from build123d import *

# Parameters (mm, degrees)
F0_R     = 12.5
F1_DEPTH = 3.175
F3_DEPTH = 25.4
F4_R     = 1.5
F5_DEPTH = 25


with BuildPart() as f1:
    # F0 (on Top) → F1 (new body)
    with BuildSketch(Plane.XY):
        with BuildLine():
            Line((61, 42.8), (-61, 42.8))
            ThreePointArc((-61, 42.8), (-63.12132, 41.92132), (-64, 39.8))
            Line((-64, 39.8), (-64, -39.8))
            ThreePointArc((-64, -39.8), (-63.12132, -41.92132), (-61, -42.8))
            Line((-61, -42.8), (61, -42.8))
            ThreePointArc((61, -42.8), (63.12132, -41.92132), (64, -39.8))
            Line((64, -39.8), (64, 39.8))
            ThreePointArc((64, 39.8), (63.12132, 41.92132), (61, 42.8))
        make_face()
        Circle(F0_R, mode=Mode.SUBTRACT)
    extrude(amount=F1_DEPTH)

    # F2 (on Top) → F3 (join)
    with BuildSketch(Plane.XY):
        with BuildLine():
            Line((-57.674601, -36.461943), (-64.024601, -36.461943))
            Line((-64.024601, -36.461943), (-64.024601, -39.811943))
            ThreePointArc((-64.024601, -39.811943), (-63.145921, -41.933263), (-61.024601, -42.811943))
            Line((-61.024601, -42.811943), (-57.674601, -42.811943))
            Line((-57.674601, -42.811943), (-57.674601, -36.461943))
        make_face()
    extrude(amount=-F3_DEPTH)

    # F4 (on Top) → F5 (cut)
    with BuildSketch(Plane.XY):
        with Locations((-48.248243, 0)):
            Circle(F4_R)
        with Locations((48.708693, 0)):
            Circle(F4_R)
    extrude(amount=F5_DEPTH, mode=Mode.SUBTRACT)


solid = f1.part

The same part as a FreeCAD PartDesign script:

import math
import FreeCAD as App
import Part
import Sketcher
Q = App.Units.Quantity

doc = App.newDocument("Part")
params = doc.addObject("Spreadsheet::Sheet", "Params")
for row, (alias, value) in enumerate([
    ("sketch1_diameter", "25 mm"),
    ("sketch1_radius", "3.000001 mm"),
    ("sketch1_width", "122 mm"),
    ("sketch1_height", "79.6 mm"),
    ("pad1_length", "3.175 mm"),
    ("sketch2_radius", "3.000001 mm"),
    ("sketch2_width", "6.35 mm"),
    ("pad2_length", "25.4 mm"),
    ("sketch3_diameter", "3 mm"),
    ("pocket1_length", "25 mm"),
], start=1):
    params.set(f"A{row}", alias)
    params.set(f"B{row}", "=" + value)
    params.setAlias(f"B{row}", alias)

body = doc.addObject("PartDesign::Body", "Body")

# Sketch on XY plane
sketch1 = doc.addObject("Sketcher::SketchObject", "Sketch")
body.addObject(sketch1)
sketch1.AttachmentSupport = (doc.XY_Plane, [""])
sketch1.MapMode = "FlatFace"
sketch1.addGeometry([
    Part.LineSegment(App.Vector(61, 42.8, 0), App.Vector(-61, 42.8, 0)),  # 0
    Part.ArcOfCircle(Part.Circle(App.Vector(-61, 39.8, 0), App.Vector(0, 0, 1), 3), math.radians(90), math.radians(180)),  # 1
    Part.LineSegment(App.Vector(-64, 39.8, 0), App.Vector(-64, -39.8, 0)),  # 2
    Part.ArcOfCircle(Part.Circle(App.Vector(-61, -39.8, 0), App.Vector(0, 0, 1), 3), math.radians(-180), math.radians(-90)),  # 3
    Part.LineSegment(App.Vector(-61, -42.8, 0), App.Vector(61, -42.8, 0)),  # 4
    Part.ArcOfCircle(Part.Circle(App.Vector(61, -39.8, 0), App.Vector(0, 0, 1), 3), math.radians(-90), math.radians(0)),  # 5
    Part.LineSegment(App.Vector(64, -39.8, 0), App.Vector(64, 39.8, 0)),  # 6
    Part.ArcOfCircle(Part.Circle(App.Vector(61, 39.8, 0), App.Vector(0, 0, 1), 3), math.radians(0), math.radians(90)),  # 7
    Part.Circle(App.Vector(0, 0, 0), App.Vector(0, 0, 1), 12.5),  # 8
], False)
sketch1.addConstraint([
    Sketcher.Constraint("Tangent", 0, 2, 1, 1),
    Sketcher.Constraint("Tangent", 1, 2, 2, 1),
    Sketcher.Constraint("Tangent", 2, 2, 3, 1),
    Sketcher.Constraint("Tangent", 3, 2, 4, 1),
    Sketcher.Constraint("Tangent", 4, 2, 5, 1),
    Sketcher.Constraint("Tangent", 5, 2, 6, 1),
    Sketcher.Constraint("Tangent", 6, 2, 7, 1),
    Sketcher.Constraint("Tangent", 7, 2, 0, 1),
    Sketcher.Constraint("Horizontal", 0),
    Sketcher.Constraint("Vertical", 2),
    Sketcher.Constraint("Horizontal", 4),
    Sketcher.Constraint("Vertical", 6),
    Sketcher.Constraint("Coincident", 8, 3, -1, 1),
    Sketcher.Constraint("Equal", 1, 3),
    Sketcher.Constraint("Equal", 3, 5),
    Sketcher.Constraint("Equal", 5, 7),
    Sketcher.Constraint("Symmetric", 1, 3, 5, 3, -1, 1),
    Sketcher.Constraint("Diameter", 8, Q("25 mm")),
    Sketcher.Constraint("Radius", 1, Q("3.000001 mm")),
    Sketcher.Constraint("DistanceX", 0, 2, 0, 1, Q("122 mm")),
    Sketcher.Constraint("DistanceY", 2, 2, 2, 1, Q("79.6 mm")),
])
sketch1.setExpression("Constraints[17]", "Params.sketch1_diameter")
sketch1.setExpression("Constraints[18]", "Params.sketch1_radius")
sketch1.setExpression("Constraints[19]", "Params.sketch1_width")
sketch1.setExpression("Constraints[20]", "Params.sketch1_height")
pad1 = doc.addObject("PartDesign::Pad", "Pad")
body.addObject(pad1)
pad1.Profile = sketch1
pad1.setExpression("Length", "Params.pad1_length")

# Sketch on XY plane
sketch2 = doc.addObject("Sketcher::SketchObject", "Sketch001")
body.addObject(sketch2)
sketch2.AttachmentSupport = (doc.XY_Plane, [""])
sketch2.MapMode = "FlatFace"
sketch2.addGeometry([
    Part.LineSegment(App.Vector(-57.7, -36.5, 0), App.Vector(-64, -36.5, 0)),  # 0
    Part.LineSegment(App.Vector(-64, -36.5, 0), App.Vector(-64, -39.8, 0)),  # 1
    Part.ArcOfCircle(Part.Circle(App.Vector(-61, -39.8, 0), App.Vector(0, 0, 1), 3), math.radians(-180), math.radians(-90)),  # 2
    Part.LineSegment(App.Vector(-61, -42.8, 0), App.Vector(-57.7, -42.8, 0)),  # 3
    Part.LineSegment(App.Vector(-57.7, -42.8, 0), App.Vector(-57.7, -36.5, 0)),  # 4
], False)
sketch2.addConstraint([
    Sketcher.Constraint("Coincident", 0, 2, 1, 1),
    Sketcher.Constraint("Tangent", 1, 2, 2, 1),
    Sketcher.Constraint("Tangent", 2, 2, 3, 1),
    Sketcher.Constraint("Coincident", 3, 2, 4, 1),
    Sketcher.Constraint("Coincident", 4, 2, 0, 1),
    Sketcher.Constraint("Horizontal", 0),
    Sketcher.Constraint("Vertical", 1),
    Sketcher.Constraint("Horizontal", 3),
    Sketcher.Constraint("Vertical", 4),
    Sketcher.Constraint("Equal", 3, 1),
    Sketcher.Constraint("Radius", 2, Q("3.000001 mm")),
    Sketcher.Constraint("DistanceX", 0, 2, 0, 1, Q("6.35 mm")),
    Sketcher.Constraint("DistanceX", 2, 3, -1, 1, Q("61.0246 mm")),
    Sketcher.Constraint("DistanceY", 2, 3, -1, 1, Q("39.811942 mm")),
])
sketch2.setExpression("Constraints[10]", "Params.sketch2_radius")
sketch2.setExpression("Constraints[11]", "Params.sketch2_width")
pad2 = doc.addObject("PartDesign::Pad", "Pad001")
body.addObject(pad2)
pad2.Profile = sketch2
pad2.setExpression("Length", "Params.pad2_length")
pad2.Reversed = True

# Sketch on XY plane
sketch3 = doc.addObject("Sketcher::SketchObject", "Sketch002")
body.addObject(sketch3)
sketch3.AttachmentSupport = (doc.XY_Plane, [""])
sketch3.MapMode = "FlatFace"
sketch3.addGeometry([
    Part.Circle(App.Vector(-48.2, 0, 0), App.Vector(0, 0, 1), 1.5),
    Part.Circle(App.Vector(48.7, 0, 0), App.Vector(0, 0, 1), 1.5),
], False)
sketch3.addConstraint([
    Sketcher.Constraint("Equal", 0, 1),
    Sketcher.Constraint("PointOnObject", 0, 3, -1),
    Sketcher.Constraint("PointOnObject", 1, 3, -1),
    Sketcher.Constraint("Diameter", 0, Q("3 mm")),
    Sketcher.Constraint("DistanceX", 0, 3, -1, 1, Q("48.248243 mm")),
    Sketcher.Constraint("DistanceX", -1, 1, 1, 3, Q("48.708693 mm")),
])
sketch3.setExpression("Constraints[3]", "Params.sketch3_diameter")
pocket1 = doc.addObject("PartDesign::Pocket", "Pocket")
body.addObject(pocket1)
pocket1.Profile = sketch3
pocket1.setExpression("Length", "Params.pocket1_length")
pocket1.Reversed = True

doc.recompute()
